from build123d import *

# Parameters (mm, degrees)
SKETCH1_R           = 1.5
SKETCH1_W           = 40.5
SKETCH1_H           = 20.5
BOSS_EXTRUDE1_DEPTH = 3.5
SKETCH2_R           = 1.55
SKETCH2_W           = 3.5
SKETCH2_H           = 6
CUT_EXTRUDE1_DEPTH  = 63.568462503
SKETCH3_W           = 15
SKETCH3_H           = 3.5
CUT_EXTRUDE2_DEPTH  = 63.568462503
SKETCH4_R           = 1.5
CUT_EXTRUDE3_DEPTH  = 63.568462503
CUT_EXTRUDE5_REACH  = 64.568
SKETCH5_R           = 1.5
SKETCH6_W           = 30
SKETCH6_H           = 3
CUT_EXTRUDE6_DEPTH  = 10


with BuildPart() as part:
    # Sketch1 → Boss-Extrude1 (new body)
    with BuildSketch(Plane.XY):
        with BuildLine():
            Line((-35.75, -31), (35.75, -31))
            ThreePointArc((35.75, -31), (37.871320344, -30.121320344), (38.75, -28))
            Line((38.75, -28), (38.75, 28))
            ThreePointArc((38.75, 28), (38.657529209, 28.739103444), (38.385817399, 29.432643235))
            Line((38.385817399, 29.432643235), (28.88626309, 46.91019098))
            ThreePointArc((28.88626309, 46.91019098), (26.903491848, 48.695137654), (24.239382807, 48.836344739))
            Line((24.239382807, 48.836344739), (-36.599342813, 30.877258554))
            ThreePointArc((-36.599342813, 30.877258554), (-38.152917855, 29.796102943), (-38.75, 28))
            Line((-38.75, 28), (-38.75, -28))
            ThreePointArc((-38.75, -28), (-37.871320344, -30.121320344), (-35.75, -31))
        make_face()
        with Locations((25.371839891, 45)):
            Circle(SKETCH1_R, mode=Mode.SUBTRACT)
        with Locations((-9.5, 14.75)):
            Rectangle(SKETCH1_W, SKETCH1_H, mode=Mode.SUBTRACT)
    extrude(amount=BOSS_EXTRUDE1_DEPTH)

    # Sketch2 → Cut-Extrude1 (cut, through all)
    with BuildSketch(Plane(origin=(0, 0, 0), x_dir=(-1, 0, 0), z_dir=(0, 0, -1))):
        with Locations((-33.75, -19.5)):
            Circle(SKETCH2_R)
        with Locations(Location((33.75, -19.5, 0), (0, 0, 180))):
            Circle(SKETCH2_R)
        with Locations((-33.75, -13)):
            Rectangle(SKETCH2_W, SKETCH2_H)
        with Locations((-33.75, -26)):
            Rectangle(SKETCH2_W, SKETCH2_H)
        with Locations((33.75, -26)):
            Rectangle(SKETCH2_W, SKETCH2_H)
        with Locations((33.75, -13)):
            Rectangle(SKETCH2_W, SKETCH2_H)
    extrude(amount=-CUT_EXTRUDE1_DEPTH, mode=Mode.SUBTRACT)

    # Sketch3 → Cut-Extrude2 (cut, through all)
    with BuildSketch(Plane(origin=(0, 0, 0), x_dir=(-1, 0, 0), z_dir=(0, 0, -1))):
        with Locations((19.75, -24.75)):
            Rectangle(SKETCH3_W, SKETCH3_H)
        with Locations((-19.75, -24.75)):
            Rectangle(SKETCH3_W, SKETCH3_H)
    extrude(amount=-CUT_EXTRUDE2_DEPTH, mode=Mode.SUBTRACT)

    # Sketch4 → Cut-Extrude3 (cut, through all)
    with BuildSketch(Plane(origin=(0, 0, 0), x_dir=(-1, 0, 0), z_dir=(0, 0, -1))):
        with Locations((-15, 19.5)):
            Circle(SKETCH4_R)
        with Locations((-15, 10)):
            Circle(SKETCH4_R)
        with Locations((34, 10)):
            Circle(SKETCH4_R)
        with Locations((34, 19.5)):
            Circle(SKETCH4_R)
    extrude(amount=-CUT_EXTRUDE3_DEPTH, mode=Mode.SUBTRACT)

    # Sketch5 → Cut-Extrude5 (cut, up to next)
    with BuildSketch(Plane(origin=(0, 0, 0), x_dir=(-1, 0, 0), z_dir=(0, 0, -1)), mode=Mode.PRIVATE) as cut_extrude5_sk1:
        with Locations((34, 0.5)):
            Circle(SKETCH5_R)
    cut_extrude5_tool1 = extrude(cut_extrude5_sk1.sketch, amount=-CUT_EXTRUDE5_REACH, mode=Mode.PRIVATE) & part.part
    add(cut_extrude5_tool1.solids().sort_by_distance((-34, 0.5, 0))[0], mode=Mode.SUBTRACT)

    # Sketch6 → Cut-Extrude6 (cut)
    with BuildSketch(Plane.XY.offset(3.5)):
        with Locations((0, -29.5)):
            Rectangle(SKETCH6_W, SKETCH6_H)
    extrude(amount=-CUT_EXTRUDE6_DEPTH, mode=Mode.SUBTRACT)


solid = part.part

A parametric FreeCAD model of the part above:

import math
import FreeCAD as App
import Part
import Sketcher

doc = App.newDocument("Part")
body = doc.addObject("PartDesign::Body", "Body")

# Sketch on XY plane
sketch1 = doc.addObject("Sketcher::SketchObject", "Sketch")
body.addObject(sketch1)
sketch1.AttachmentSupport = (doc.XY_Plane, [""])
sketch1.MapMode = "FlatFace"
sketch1.addGeometry([
    Part.LineSegment(App.Vector(-35.8, -31, 0), App.Vector(35.8, -31, 0)),  # 0
    Part.ArcOfCircle(Part.Circle(App.Vector(35.8, -28, 0), App.Vector(0, 0, 1), 3), math.radians(-90), math.radians(0)),  # 1
    Part.LineSegment(App.Vector(38.8, -28, 0), App.Vector(38.8, 28, 0)),  # 2
    Part.ArcOfCircle(Part.Circle(App.Vector(35.8, 28, 0), App.Vector(0, 0, 1), 3), math.radians(0), math.radians(29)),  # 3
    Part.LineSegment(App.Vector(38.4, 29.4, 0), App.Vector(28.9, 46.9, 0)),  # 4
    Part.ArcOfCircle(Part.Circle(App.Vector(25.4, 45, 0), App.Vector(0, 0, 1), 4), math.radians(29), math.radians(106)),  # 5
    Part.LineSegment(App.Vector(24.2, 48.8, 0), App.Vector(-36.6, 30.9, 0)),  # 6
    Part.ArcOfCircle(Part.Circle(App.Vector(-35.8, 28, 0), App.Vector(0, 0, 1), 3), math.radians(106), math.radians(180)),  # 7
    Part.LineSegment(App.Vector(-38.8, 28, 0), App.Vector(-38.8, -28, 0)),  # 8
    Part.ArcOfCircle(Part.Circle(App.Vector(-35.8, -28, 0), App.Vector(0, 0, 1), 3), math.radians(180), math.radians(270)),  # 9
    Part.LineSegment(App.Vector(10.8, 4.5, 0), App.Vector(-29.8, 4.5, 0)),  # 10
    Part.LineSegment(App.Vector(-29.8, 4.5, 0), App.Vector(-29.8, 25, 0)),  # 11
    Part.LineSegment(App.Vector(-29.8, 25, 0), App.Vector(10.8, 25, 0)),  # 12
    Part.LineSegment(App.Vector(10.8, 25, 0), App.Vector(10.8, 4.5, 0)),  # 13
    Part.Circle(App.Vector(25.4, 45, 0), App.Vector(0, 0, 1), 1.5),  # 14
], False)
sketch1.addConstraint([
    Sketcher.Constraint("Tangent", 0, 2, 1, 1),
    Sketcher.Constraint("Tangent", 1, 2, 2, 1),
    Sketcher.Constraint("Tangent", 2, 2, 3, 1),
    Sketcher.Constraint("Tangent", 3, 2, 4, 1),
    Sketcher.Constraint("Tangent", 4, 2, 5, 1),
    Sketcher.Constraint("Tangent", 5, 2, 6, 1),
    Sketcher.Constraint("Tangent", 6, 2, 7, 1),
    Sketcher.Constraint("Tangent", 7, 2, 8, 1),
    Sketcher.Constraint("Tangent", 8, 2, 9, 1),
    Sketcher.Constraint("Tangent", 9, 2, 0, 1),
    Sketcher.Constraint("Coincident", 10, 2, 11, 1),
    Sketcher.Constraint("Coincident", 11, 2, 12, 1),
    Sketcher.Constraint("Coincident", 12, 2, 13, 1),
    Sketcher.Constraint("Coincident", 13, 2, 10, 1),
    Sketcher.Constraint("Horizontal", 0),
    Sketcher.Constraint("Vertical", 2),
    Sketcher.Constraint("Vertical", 8),
    Sketcher.Constraint("Horizontal", 10),
    Sketcher.Constraint("Vertical", 11),
    Sketcher.Constraint("Horizontal", 12),
    Sketcher.Constraint("Vertical", 13),
    Sketcher.Constraint("Coincident", 14, 3, 5, 3),
    Sketcher.Constraint("Equal", 1, 3),
    Sketcher.Constraint("Equal", 3, 7),
    Sketcher.Constraint("Equal", 7, 9),
    Sketcher.Constraint("Symmetric", 1, 3, 7, 3, -1, 1),
    Sketcher.Constraint("Horizontal", 3, 3, 7, 3),
    Sketcher.Constraint("Diameter", 14, 3.0),
    Sketcher.Constraint("Radius", 1, 3.0),
    Sketcher.Constraint("Radius", 5, 4.0),
    Sketcher.Constraint("DistanceY", 2, 1, 2, 2, 56.0),
    Sketcher.Constraint("DistanceX", 0, 1, 0, 2, 71.5),
    Sketcher.Constraint("DistanceX", 10, 2, 10, 1, 40.5),
    Sketcher.Constraint("DistanceY", 11, 1, 11, 2, 20.5),
    Sketcher.Constraint("DistanceY", -1, 1, 5, 3, 45.0),
    Sketcher.Constraint("DistanceY", -1, 1, 11, 2, 25.0),
    Sketcher.Constraint("DistanceX", 7, 3, 10, 2, 6.0),
    Sketcher.Constraint("DistanceY", 3, 2, 5, 2, 19.403702),
])
pad1 = doc.addObject("PartDesign::Pad", "Pad")
body.addObject(pad1)
pad1.Profile = sketch1
pad1.Length = 3.5

# Sketch on XY plane
sketch2 = doc.addObject("Sketcher::SketchObject", "Sketch001")
body.addObject(sketch2)
sketch2.AttachmentSupport = (doc.XY_Plane, [""])
sketch2.MapMode = "FlatFace"
sketch2.addGeometry([
    Part.Circle(App.Vector(33.8, -19.5, 0), App.Vector(0, 0, 1), 1.6),  # 0
    Part.Circle(App.Vector(-33.8, -19.5, 0), App.Vector(0, 0, 1), 1.6),  # 1
    Part.LineSegment(App.Vector(35.5, -10, 0), App.Vector(35.5, -16, 0)),  # 2
    Part.LineSegment(App.Vector(35.5, -16, 0), App.Vector(32, -16, 0)),  # 3
    Part.LineSegment(App.Vector(32, -16, 0), App.Vector(32, -10, 0)),  # 4
    Part.LineSegment(App.Vector(32, -10, 0), App.Vector(35.5, -10, 0)),  # 5
    Part.LineSegment(App.Vector(35.5, -23, 0), App.Vector(35.5, -29, 0)),  # 6
    Part.LineSegment(App.Vector(35.5, -29, 0), App.Vector(32, -29, 0)),  # 7
    Part.LineSegment(App.Vector(32, -29, 0), App.Vector(32, -23, 0)),  # 8
    Part.LineSegment(App.Vector(32, -23, 0), App.Vector(35.5, -23, 0)),  # 9
    Part.LineSegment(App.Vector(-32, -23, 0), App.Vector(-32, -29, 0)),  # 10
    Part.LineSegment(App.Vector(-32, -29, 0), App.Vector(-35.5, -29, 0)),  # 11
    Part.LineSegment(App.Vector(-35.5, -29, 0), App.Vector(-35.5, -23, 0)),  # 12
    Part.LineSegment(App.Vector(-35.5, -23, 0), App.Vector(-32, -23, 0)),  # 13
    Part.LineSegment(App.Vector(-32, -10, 0), App.Vector(-32, -16, 0)),  # 14
    Part.LineSegment(App.Vector(-32, -16, 0), App.Vector(-35.5, -16, 0)),  # 15
    Part.LineSegment(App.Vector(-35.5, -16, 0), App.Vector(-35.5, -10, 0)),  # 16
    Part.LineSegment(App.Vector(-35.5, -10, 0), App.Vector(-32, -10, 0)),  # 17
], False)
sketch2.addConstraint([
    Sketcher.Constraint("Coincident", 2, 2, 3, 1),
    Sketcher.Constraint("Coincident", 3, 2, 4, 1),
    Sketcher.Constraint("Coincident", 4, 2, 5, 1),
    Sketcher.Constraint("Coincident", 5, 2, 2, 1),
    Sketcher.Constraint("Coincident", 6, 2, 7, 1),
    Sketcher.Constraint("Coincident", 7, 2, 8, 1),
    Sketcher.Constraint("Coincident", 8, 2, 9, 1),
    Sketcher.Constraint("Coincident", 9, 2, 6, 1),
    Sketcher.Constraint("Coincident", 10, 2, 11, 1),
    Sketcher.Constraint("Coincident", 11, 2, 12, 1),
    Sketcher.Constraint("Coincident", 12, 2, 13, 1),
    Sketcher.Constraint("Coincident", 13, 2, 10, 1),
    Sketcher.Constraint("Coincident", 14, 2, 15, 1),
    Sketcher.Constraint("Coincident", 15, 2, 16, 1),
    Sketcher.Constraint("Coincident", 16, 2, 17, 1),
    Sketcher.Constraint("Coincident", 17, 2, 14, 1),
    Sketcher.Constraint("Vertical", 2),
    Sketcher.Constraint("Horizontal", 3),
    Sketcher.Constraint("Vertical", 4),
    Sketcher.Constraint("Horizontal", 5),
    Sketcher.Constraint("Vertical", 6),
    Sketcher.Constraint("Horizontal", 7),
    Sketcher.Constraint("Vertical", 8),
    Sketcher.Constraint("Horizontal", 9),
    Sketcher.Constraint("Vertical", 10),
    Sketcher.Constraint("Horizontal", 11),
    Sketcher.Constraint("Vertical", 12),
    Sketcher.Constraint("Horizontal", 13),
    Sketcher.Constraint("Vertical", 14),
    Sketcher.Constraint("Horizontal", 15),
    Sketcher.Constraint("Vertical", 16),
    Sketcher.Constraint("Horizontal", 17),
    Sketcher.Constraint("Equal", 0, 1),
    Sketcher.Constraint("Symmetric", 0, 3, 1, 3, -2),
    Sketcher.Constraint("Symmetric", 7, 2, 10, 2, -2),
    Sketcher.Constraint("Symmetric", 9, 2, 12, 2, -2),
    Sketcher.Constraint("Symmetric", 3, 2, 14, 2, -2),
    Sketcher.Constraint("Symmetric", 5, 2, 16, 2, -2),
    Sketcher.Constraint("Vertical", 5, 2, 6, 2),
    Sketcher.Constraint("Vertical", 4, 2, 7, 2),
    Sketcher.Constraint("Equal", 4, 6),
    Sketcher.Constraint("Diameter", 0, 3.1),
    Sketcher.Constraint("DistanceY", 2, 2, 2, 1, 6.0),
    Sketcher.Constraint("DistanceX", 3, 2, 3, 1, 3.5),
    Sketcher.Constraint("DistanceY", 2, 2, -1, 1, 16.0),
    Sketcher.Constraint("DistanceX", -1, 1, 3, 2, 32.0),
    Sketcher.Constraint("DistanceY", 6, 2, -1, 1, 29.0),
    Sketcher.Constraint("DistanceY", 0, 3, -1, 1, 19.5),
    Sketcher.Constraint("DistanceX", 1, 3, 0, 3, 67.5),
])
pocket1 = doc.addObject("PartDesign::Pocket", "Pocket")
body.addObject(pocket1)
pocket1.Profile = sketch2
pocket1.Type = "ThroughAll"
pocket1.Reversed = True

# Sketch on XY plane
sketch3 = doc.addObject("Sketcher::SketchObject", "Sketch002")
body.addObject(sketch3)
sketch3.AttachmentSupport = (doc.XY_Plane, [""])
sketch3.MapMode = "FlatFace"
sketch3.addGeometry([
    Part.LineSegment(App.Vector(-12.2, -23, 0), App.Vector(-12.2, -26.5, 0)),  # 0
    Part.LineSegment(App.Vector(-12.2, -26.5, 0), App.Vector(-27.2, -26.5, 0)),  # 1
    Part.LineSegment(App.Vector(-27.2, -26.5, 0), App.Vector(-27.2, -23, 0)),  # 2
    Part.LineSegment(App.Vector(-27.2, -23, 0), App.Vector(-12.2, -23, 0)),  # 3
    Part.LineSegment(App.Vector(27.2, -23, 0), App.Vector(27.2, -26.5, 0)),  # 4
    Part.LineSegment(App.Vector(27.2, -26.5, 0), App.Vector(12.2, -26.5, 0)),  # 5
    Part.LineSegment(App.Vector(12.2, -26.5, 0), App.Vector(12.2, -23, 0)),  # 6
    Part.LineSegment(App.Vector(12.2, -23, 0), App.Vector(27.2, -23, 0)),  # 7
], False)
sketch3.addConstraint([
    Sketcher.Constraint("Coincident", 0, 2, 1, 1),
    Sketcher.Constraint("Coincident", 1, 2, 2, 1),
    Sketcher.Constraint("Coincident", 2, 2, 3, 1),
    Sketcher.Constraint("Coincident", 3, 2, 0, 1),
    Sketcher.Constraint("Coincident", 4, 2, 5, 1),
    Sketcher.Constraint("Coincident", 5, 2, 6, 1),
    Sketcher.Constraint("Coincident", 6, 2, 7, 1),
    Sketcher.Constraint("Coincident", 7, 2, 4, 1),
    Sketcher.Constraint("Vertical", 0),
    Sketcher.Constraint("Horizontal", 1),
    Sketcher.Constraint("Vertical", 2),
    Sketcher.Constraint("Horizontal", 3),
    Sketcher.Constraint("Vertical", 4),
    Sketcher.Constraint("Horizontal", 5),
    Sketcher.Constraint("Vertical", 6),
    Sketcher.Constraint("Horizontal", 7),
    Sketcher.Constraint("Symmetric", 1, 2, 4, 2, -2),
    Sketcher.Constraint("Symmetric", 3, 2, 6, 2, -2),
    Sketcher.Constraint("DistanceX", 1, 2, 1, 1, 15.0),
    Sketcher.Constraint("DistanceY", 0, 2, 0, 1, 3.5),
    Sketcher.Constraint("DistanceY", 2, 2, -1, 1, 23.0),
    Sketcher.Constraint("DistanceX", 0, 2, 4, 2, 39.5),
])
pocket2 = doc.addObject("PartDesign::Pocket", "Pocket001")
body.addObject(pocket2)
pocket2.Profile = sketch3
pocket2.Type = "ThroughAll"
pocket2.Reversed = True

# Sketch on XY plane
sketch4 = doc.addObject("Sketcher::SketchObject", "Sketch003")
body.addObject(sketch4)
sketch4.AttachmentSupport = (doc.XY_Plane, [""])
sketch4.MapMode = "FlatFace"
sketch4.addGeometry([
    Part.Circle(App.Vector(15, 19.5, 0), App.Vector(0, 0, 1), 1.5),
    Part.Circle(App.Vector(15, 10, 0), App.Vector(0, 0, 1), 1.5),
    Part.Circle(App.Vector(-34, 10, 0), App.Vector(0, 0, 1), 1.5),
    Part.Circle(App.Vector(-34, 19.5, 0), App.Vector(0, 0, 1), 1.5),
], False)
sketch4.addConstraint([
    Sketcher.Constraint("Equal", 0, 1),
    Sketcher.Constraint("Equal", 1, 2),
    Sketcher.Constraint("Equal", 2, 3),
    Sketcher.Constraint("Horizontal", 1, 3, 2, 3),
    Sketcher.Constraint("Horizontal", 0, 3, 3, 3),
    Sketcher.Constraint("Vertical", 0, 3, 1, 3),
    Sketcher.Constraint("Vertical", 2, 3, 3, 3),
    Sketcher.Constraint("Diameter", 0, 3.0),
    Sketcher.Constraint("DistanceX", -1, 1, 0, 3, 15.0),
    Sketcher.Constraint("DistanceY", -1, 1, 1, 3, 10.0),
    Sketcher.Constraint("DistanceX", 2, 3, -1, 1, 34.0),
    Sketcher.Constraint("DistanceY", -1, 1, 0, 3, 19.5),
])
pocket3 = doc.addObject("PartDesign::Pocket", "Pocket002")
body.addObject(pocket3)
pocket3.Profile = sketch4
pocket3.Type = "ThroughAll"
pocket3.Reversed = True

# Sketch on XY plane
sketch5 = doc.addObject("Sketcher::SketchObject", "Sketch004")
body.addObject(sketch5)
sketch5.AttachmentSupport = (doc.XY_Plane, [""])
sketch5.MapMode = "FlatFace"
sketch5.addGeometry(Part.Circle(App.Vector(-34, 0.5, 0), App.Vector(0, 0, 1), 1.5), False)
sketch5.addConstraint([
    Sketcher.Constraint("Diameter", 0, 3.0),
    Sketcher.Constraint("DistanceX", 0, 3, -1, 1, 34.0),
    Sketcher.Constraint("DistanceY", -1, 1, 0, 3, 0.5),
])
pocket4 = doc.addObject("PartDesign::Pocket", "Pocket003")
body.addObject(pocket4)
pocket4.Profile = sketch5
pocket4.Type = "UpToFirst"
pocket4.Reversed = True

# Sketch on XY plane
sketch6 = doc.addObject("Sketcher::SketchObject", "Sketch005")
body.addObject(sketch6)
sketch6.AttachmentSupport = (doc.XY_Plane, [""])
sketch6.MapMode = "FlatFace"
sketch6.AttachmentOffset = App.Placement(App.Vector(0, 0, 3.5), App.Rotation())
sketch6.addGeometry([
    Part.LineSegment(App.Vector(-15, -28, 0), App.Vector(-15, -31, 0)),
    Part.LineSegment(App.Vector(-15, -31, 0), App.Vector(15, -31, 0)),
    Part.LineSegment(App.Vector(15, -31, 0), App.Vector(15, -28, 0)),
    Part.LineSegment(App.Vector(15, -28, 0), App.Vector(-15, -28, 0)),
], False)
sketch6.addConstraint([
    Sketcher.Constraint("Coincident", 0, 2, 1, 1),
    Sketcher.Constraint("Coincident", 1, 2, 2, 1),
    Sketcher.Constraint("Coincident", 2, 2, 3, 1),
    Sketcher.Constraint("Coincident", 3, 2, 0, 1),
    Sketcher.Constraint("Vertical", 0),
    Sketcher.Constraint("Horizontal", 1),
    Sketcher.Constraint("Vertical", 2),
    Sketcher.Constraint("Horizontal", 3),
    Sketcher.Constraint("DistanceX", 1, 1, 1, 2, 30.0),
    Sketcher.Constraint("DistanceY", 0, 2, 0, 1, 3.0),
    Sketcher.Constraint("DistanceX", 0, 2, -1, 1, 15.0),
    Sketcher.Constraint("DistanceY", 0, 2, -1, 1, 31.0),
])
pocket5 = doc.addObject("PartDesign::Pocket", "Pocket004")
body.addObject(pocket5)
pocket5.Profile = sketch6
pocket5.Length = 10

doc.recompute()
